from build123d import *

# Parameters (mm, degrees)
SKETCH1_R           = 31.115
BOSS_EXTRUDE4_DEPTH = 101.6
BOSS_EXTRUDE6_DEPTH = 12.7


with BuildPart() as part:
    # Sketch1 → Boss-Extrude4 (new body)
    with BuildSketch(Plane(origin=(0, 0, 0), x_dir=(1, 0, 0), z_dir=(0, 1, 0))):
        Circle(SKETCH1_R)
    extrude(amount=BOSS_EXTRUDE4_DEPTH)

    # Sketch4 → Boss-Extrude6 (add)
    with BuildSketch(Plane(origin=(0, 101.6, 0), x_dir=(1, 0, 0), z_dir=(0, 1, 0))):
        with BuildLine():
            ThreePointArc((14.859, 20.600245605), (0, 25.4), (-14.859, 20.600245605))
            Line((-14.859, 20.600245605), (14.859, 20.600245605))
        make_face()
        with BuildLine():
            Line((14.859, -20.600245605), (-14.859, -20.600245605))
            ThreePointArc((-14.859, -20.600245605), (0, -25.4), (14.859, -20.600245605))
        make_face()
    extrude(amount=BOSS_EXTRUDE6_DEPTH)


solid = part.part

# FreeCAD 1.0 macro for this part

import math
import FreeCAD as App
import Part
import Sketcher
Q = App.Units.Quantity

doc = App.newDocument("Part")
body = doc.addObject("PartDesign::Body", "Body")

sketch1 = body.newObject("Sketcher::SketchObject", "Sketch")
sketch1.AttachmentSupport = (doc.getObject("XZ_Plane"), [""])
sketch1.MapMode = "FlatFace"
sketch1.addGeometry(Part.Circle(App.Vector(0, 0, 0), App.Vector(0, 0, 1), 31), False)
sketch1.addConstraint([
    Sketcher.Constraint("Coincident", 0, 3, -1, 1),
    Sketcher.Constraint("Diameter", 0, Q("2.45 in")),
])
pad1 = body.newObject("PartDesign::Pad", "Pad")
pad1.Profile = sketch1
pad1.Length = Q("4 in")
pad1.Reversed = True

sketch2 = body.newObject("Sketcher::SketchObject", "Sketch001")
sketch2.AttachmentSupport = (doc.getObject("XZ_Plane"), [""])
sketch2.MapMode = "FlatFace"
sketch2.AttachmentOffset = App.Placement(App.Vector(0, 0, -4 * 25.4), App.Rotation())
sketch2.addGeometry([
    Part.ArcOfCircle(Part.Circle(App.Vector(0, 0, 0), App.Vector(0, 0, 1), 25), math.radians(-126), math.radians(-54)),
    Part.LineSegment(App.Vector(-15, -21, 0), App.Vector(15, -21, 0)),
    Part.LineSegment(App.Vector(15, 21, 0), App.Vector(-15, 21, 0)),
    Part.ArcOfCircle(Part.Circle(App.Vector(0, 0, 0), App.Vector(0, 0, 1), 25), math.radians(54), math.radians(126)),
], False)
sketch2.addConstraint([
    Sketcher.Constraint("Coincident", 0, 1, 1, 1),
    Sketcher.Constraint("Coincident", 1, 2, 0, 2),
    Sketcher.Constraint("Coincident", 2, 1, 3, 1),
    Sketcher.Constraint("Coincident", 3, 2, 2, 2),
    Sketcher.Constraint("Horizontal", 1),
    Sketcher.Constraint("Horizontal", 2),
    Sketcher.Constraint("Coincident", 0, 3, -1, 1),
    Sketcher.Constraint("Coincident", 3, 3, -1, 1),
    Sketcher.Constraint("Equal", 0, 3),
    Sketcher.Constraint("Vertical", 1, 2, 2, 1),
    Sketcher.Constraint("Radius", 0, Q("1 in")),
    Sketcher.Constraint("DistanceX", 1, 1, 1, 2, Q("1.17 in")),
])
pad2 = body.newObject("PartDesign::Pad", "Pad001")
pad2.Profile = sketch2
pad2.Length = Q("0.5 in")
pad2.Reversed = True

doc.recompute()
